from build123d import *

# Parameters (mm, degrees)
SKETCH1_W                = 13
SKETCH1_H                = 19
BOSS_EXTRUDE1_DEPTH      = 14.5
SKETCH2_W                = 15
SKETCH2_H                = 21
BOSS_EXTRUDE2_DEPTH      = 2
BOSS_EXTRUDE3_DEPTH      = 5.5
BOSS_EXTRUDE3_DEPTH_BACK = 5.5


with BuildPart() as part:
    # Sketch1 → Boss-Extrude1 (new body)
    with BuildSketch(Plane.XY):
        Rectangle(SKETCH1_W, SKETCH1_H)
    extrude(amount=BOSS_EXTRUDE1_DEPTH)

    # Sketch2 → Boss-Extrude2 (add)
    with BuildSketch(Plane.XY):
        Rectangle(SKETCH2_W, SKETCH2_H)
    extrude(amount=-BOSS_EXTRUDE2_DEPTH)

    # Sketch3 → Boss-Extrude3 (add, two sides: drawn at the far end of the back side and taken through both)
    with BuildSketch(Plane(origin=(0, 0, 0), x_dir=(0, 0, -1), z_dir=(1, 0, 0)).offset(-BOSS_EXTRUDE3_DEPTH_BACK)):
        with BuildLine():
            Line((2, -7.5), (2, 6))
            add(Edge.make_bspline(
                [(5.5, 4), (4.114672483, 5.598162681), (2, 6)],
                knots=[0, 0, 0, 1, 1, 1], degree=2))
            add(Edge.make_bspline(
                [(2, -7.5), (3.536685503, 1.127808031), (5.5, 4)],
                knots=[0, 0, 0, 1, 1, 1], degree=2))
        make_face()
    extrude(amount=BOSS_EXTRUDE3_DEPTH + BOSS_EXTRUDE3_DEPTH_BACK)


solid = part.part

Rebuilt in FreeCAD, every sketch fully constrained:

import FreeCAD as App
import Part
import Sketcher

doc = App.newDocument("Part")
params = doc.addObject("Spreadsheet::Sheet", "Params")
for row, (alias, value) in enumerate([
    ("sketch1_width", "13 mm"),
    ("sketch1_height", "19 mm"),
    ("pad1_length", "14.5 mm"),
    ("sketch2_width", "15 mm"),
    ("sketch2_height", "21 mm"),
    ("pad2_length", "2 mm"),
    ("pad3_length", "5.5 mm"),
    ("pad3_length2", "5.5 mm"),
], start=1):
    params.set(f"A{row}", alias)
    params.set(f"B{row}", "=" + value)
    params.setAlias(f"B{row}", alias)

body = doc.addObject("PartDesign::Body", "Body")

sketch1 = doc.addObject("Sketcher::SketchObject", "Sketch")
body.addObject(sketch1)
sketch1.AttachmentSupport = (doc.XY_Plane, [""])
sketch1.MapMode = "FlatFace"
sketch1.addGeometry(Part.LineSegment(App.Vector(-6, 10, 0), App.Vector(-6, -10, 0)), False)
sketch1.addGeometry(Part.LineSegment(App.Vector(-6, -10, 0), App.Vector(6, -10, 0)), False)
sketch1.addGeometry(Part.LineSegment(App.Vector(6, -10, 0), App.Vector(6, 10, 0)), False)
sketch1.addGeometry(Part.LineSegment(App.Vector(6, 10, 0), App.Vector(-6, 10, 0)), False)
sketch1.addConstraint(Sketcher.Constraint("Coincident", 0, 2, 1, 1))
sketch1.addConstraint(Sketcher.Constraint("Coincident", 1, 2, 2, 1))
sketch1.addConstraint(Sketcher.Constraint("Coincident", 2, 2, 3, 1))
sketch1.addConstraint(Sketcher.Constraint("Coincident", 3, 2, 0, 1))
sketch1.addConstraint(Sketcher.Constraint("Vertical", 0))
sketch1.addConstraint(Sketcher.Constraint("Horizontal", 1))
sketch1.addConstraint(Sketcher.Constraint("Vertical", 2))
sketch1.addConstraint(Sketcher.Constraint("Horizontal", 3))
sketch1.addConstraint(Sketcher.Constraint("Symmetric", 0, 2, 2, 2, -1, 1))
sketch1.addConstraint(Sketcher.Constraint("DistanceX", 1, 1, 1, 2, 13.0))
sketch1.addConstraint(Sketcher.Constraint("DistanceY", 0, 2, 0, 1, 19.0))
sketch1.setExpression("Constraints[9]", "Params.sketch1_width")
sketch1.setExpression("Constraints[10]", "Params.sketch1_height")
pad1 = doc.addObject("PartDesign::Pad", "Pad")
body.addObject(pad1)
pad1.Profile = sketch1
pad1.setExpression("Length", "Params.pad1_length")

sketch2 = doc.addObject("Sketcher::SketchObject", "Sketch001")
body.addObject(sketch2)
sketch2.AttachmentSupport = (doc.XY_Plane, [""])
sketch2.MapMode = "FlatFace"
sketch2.addGeometry(Part.LineSegment(App.Vector(-8, 10, 0), App.Vector(-8, -10, 0)), False)
sketch2.addGeometry(Part.LineSegment(App.Vector(-8, -10, 0), App.Vector(8, -10, 0)), False)
sketch2.addGeometry(Part.LineSegment(App.Vector(8, -10, 0), App.Vector(8, 10, 0)), False)
sketch2.addGeometry(Part.LineSegment(App.Vector(8, 10, 0), App.Vector(-8, 10, 0)), False)
sketch2.addConstraint(Sketcher.Constraint("Coincident", 0, 2, 1, 1))
sketch2.addConstraint(Sketcher.Constraint("Coincident", 1, 2, 2, 1))
sketch2.addConstraint(Sketcher.Constraint("Coincident", 2, 2, 3, 1))
sketch2.addConstraint(Sketcher.Constraint("Coincident", 3, 2, 0, 1))
sketch2.addConstraint(Sketcher.Constraint("Vertical", 0))
sketch2.addConstraint(Sketcher.Constraint("Horizontal", 1))
sketch2.addConstraint(Sketcher.Constraint("Vertical", 2))
sketch2.addConstraint(Sketcher.Constraint("Horizontal", 3))
sketch2.addConstraint(Sketcher.Constraint("Symmetric", 0, 2, 2, 2, -1, 1))
sketch2.addConstraint(Sketcher.Constraint("DistanceX", 1, 1, 1, 2, 15.0))
sketch2.addConstraint(Sketcher.Constraint("DistanceY", 0, 2, 0, 1, 21.0))
sketch2.setExpression("Constraints[9]", "Params.sketch2_width")
sketch2.setExpression("Constraints[10]", "Params.sketch2_height")
pad2 = doc.addObject("PartDesign::Pad", "Pad001")
body.addObject(pad2)
pad2.Profile = sketch2
pad2.setExpression("Length", "Params.pad2_length")
pad2.Reversed = True

sketch3 = doc.addObject("Sketcher::SketchObject", "Sketch002")
body.addObject(sketch3)
sketch3.AttachmentSupport = (doc.YZ_Plane, [""])
sketch3.MapMode = "FlatFace"
sketch3.addGeometry(Part.LineSegment(App.Vector(6, -2, 0), App.Vector(-7.5, -2, 0)), False)
sketch3.addGeometry(Part.BSplineCurve([App.Vector(-7.5, -2, 0), App.Vector(1.127808, -3.536686, 0), App.Vector(4, -5.5, 0)], [3, 3], [0, 1], False, 2, [1, 1, 1], False), False)
sketch3.addGeometry(Part.BSplineCurve([App.Vector(4, -5.5, 0), App.Vector(5.598163, -4.114672, 0), App.Vector(6, -2, 0)], [3, 3], [0, 1], False, 2, [1, 1, 1], False), False)
sketch3.addConstraint(Sketcher.Constraint("Block", 1))
sketch3.addConstraint(Sketcher.Constraint("Block", 2))
sketch3.addConstraint(Sketcher.Constraint("Coincident", 0, 2, 1, 1))
sketch3.addConstraint(Sketcher.Constraint("Coincident", 2, 2, 0, 1))
pad3 = doc.addObject("PartDesign::Pad", "Pad002")
body.addObject(pad3)
pad3.Profile = sketch3
pad3.Type = "TwoLengths"
pad3.setExpression("Length", "Params.pad3_length")
pad3.setExpression("Length2", "Params.pad3_length2")

doc.recompute()
